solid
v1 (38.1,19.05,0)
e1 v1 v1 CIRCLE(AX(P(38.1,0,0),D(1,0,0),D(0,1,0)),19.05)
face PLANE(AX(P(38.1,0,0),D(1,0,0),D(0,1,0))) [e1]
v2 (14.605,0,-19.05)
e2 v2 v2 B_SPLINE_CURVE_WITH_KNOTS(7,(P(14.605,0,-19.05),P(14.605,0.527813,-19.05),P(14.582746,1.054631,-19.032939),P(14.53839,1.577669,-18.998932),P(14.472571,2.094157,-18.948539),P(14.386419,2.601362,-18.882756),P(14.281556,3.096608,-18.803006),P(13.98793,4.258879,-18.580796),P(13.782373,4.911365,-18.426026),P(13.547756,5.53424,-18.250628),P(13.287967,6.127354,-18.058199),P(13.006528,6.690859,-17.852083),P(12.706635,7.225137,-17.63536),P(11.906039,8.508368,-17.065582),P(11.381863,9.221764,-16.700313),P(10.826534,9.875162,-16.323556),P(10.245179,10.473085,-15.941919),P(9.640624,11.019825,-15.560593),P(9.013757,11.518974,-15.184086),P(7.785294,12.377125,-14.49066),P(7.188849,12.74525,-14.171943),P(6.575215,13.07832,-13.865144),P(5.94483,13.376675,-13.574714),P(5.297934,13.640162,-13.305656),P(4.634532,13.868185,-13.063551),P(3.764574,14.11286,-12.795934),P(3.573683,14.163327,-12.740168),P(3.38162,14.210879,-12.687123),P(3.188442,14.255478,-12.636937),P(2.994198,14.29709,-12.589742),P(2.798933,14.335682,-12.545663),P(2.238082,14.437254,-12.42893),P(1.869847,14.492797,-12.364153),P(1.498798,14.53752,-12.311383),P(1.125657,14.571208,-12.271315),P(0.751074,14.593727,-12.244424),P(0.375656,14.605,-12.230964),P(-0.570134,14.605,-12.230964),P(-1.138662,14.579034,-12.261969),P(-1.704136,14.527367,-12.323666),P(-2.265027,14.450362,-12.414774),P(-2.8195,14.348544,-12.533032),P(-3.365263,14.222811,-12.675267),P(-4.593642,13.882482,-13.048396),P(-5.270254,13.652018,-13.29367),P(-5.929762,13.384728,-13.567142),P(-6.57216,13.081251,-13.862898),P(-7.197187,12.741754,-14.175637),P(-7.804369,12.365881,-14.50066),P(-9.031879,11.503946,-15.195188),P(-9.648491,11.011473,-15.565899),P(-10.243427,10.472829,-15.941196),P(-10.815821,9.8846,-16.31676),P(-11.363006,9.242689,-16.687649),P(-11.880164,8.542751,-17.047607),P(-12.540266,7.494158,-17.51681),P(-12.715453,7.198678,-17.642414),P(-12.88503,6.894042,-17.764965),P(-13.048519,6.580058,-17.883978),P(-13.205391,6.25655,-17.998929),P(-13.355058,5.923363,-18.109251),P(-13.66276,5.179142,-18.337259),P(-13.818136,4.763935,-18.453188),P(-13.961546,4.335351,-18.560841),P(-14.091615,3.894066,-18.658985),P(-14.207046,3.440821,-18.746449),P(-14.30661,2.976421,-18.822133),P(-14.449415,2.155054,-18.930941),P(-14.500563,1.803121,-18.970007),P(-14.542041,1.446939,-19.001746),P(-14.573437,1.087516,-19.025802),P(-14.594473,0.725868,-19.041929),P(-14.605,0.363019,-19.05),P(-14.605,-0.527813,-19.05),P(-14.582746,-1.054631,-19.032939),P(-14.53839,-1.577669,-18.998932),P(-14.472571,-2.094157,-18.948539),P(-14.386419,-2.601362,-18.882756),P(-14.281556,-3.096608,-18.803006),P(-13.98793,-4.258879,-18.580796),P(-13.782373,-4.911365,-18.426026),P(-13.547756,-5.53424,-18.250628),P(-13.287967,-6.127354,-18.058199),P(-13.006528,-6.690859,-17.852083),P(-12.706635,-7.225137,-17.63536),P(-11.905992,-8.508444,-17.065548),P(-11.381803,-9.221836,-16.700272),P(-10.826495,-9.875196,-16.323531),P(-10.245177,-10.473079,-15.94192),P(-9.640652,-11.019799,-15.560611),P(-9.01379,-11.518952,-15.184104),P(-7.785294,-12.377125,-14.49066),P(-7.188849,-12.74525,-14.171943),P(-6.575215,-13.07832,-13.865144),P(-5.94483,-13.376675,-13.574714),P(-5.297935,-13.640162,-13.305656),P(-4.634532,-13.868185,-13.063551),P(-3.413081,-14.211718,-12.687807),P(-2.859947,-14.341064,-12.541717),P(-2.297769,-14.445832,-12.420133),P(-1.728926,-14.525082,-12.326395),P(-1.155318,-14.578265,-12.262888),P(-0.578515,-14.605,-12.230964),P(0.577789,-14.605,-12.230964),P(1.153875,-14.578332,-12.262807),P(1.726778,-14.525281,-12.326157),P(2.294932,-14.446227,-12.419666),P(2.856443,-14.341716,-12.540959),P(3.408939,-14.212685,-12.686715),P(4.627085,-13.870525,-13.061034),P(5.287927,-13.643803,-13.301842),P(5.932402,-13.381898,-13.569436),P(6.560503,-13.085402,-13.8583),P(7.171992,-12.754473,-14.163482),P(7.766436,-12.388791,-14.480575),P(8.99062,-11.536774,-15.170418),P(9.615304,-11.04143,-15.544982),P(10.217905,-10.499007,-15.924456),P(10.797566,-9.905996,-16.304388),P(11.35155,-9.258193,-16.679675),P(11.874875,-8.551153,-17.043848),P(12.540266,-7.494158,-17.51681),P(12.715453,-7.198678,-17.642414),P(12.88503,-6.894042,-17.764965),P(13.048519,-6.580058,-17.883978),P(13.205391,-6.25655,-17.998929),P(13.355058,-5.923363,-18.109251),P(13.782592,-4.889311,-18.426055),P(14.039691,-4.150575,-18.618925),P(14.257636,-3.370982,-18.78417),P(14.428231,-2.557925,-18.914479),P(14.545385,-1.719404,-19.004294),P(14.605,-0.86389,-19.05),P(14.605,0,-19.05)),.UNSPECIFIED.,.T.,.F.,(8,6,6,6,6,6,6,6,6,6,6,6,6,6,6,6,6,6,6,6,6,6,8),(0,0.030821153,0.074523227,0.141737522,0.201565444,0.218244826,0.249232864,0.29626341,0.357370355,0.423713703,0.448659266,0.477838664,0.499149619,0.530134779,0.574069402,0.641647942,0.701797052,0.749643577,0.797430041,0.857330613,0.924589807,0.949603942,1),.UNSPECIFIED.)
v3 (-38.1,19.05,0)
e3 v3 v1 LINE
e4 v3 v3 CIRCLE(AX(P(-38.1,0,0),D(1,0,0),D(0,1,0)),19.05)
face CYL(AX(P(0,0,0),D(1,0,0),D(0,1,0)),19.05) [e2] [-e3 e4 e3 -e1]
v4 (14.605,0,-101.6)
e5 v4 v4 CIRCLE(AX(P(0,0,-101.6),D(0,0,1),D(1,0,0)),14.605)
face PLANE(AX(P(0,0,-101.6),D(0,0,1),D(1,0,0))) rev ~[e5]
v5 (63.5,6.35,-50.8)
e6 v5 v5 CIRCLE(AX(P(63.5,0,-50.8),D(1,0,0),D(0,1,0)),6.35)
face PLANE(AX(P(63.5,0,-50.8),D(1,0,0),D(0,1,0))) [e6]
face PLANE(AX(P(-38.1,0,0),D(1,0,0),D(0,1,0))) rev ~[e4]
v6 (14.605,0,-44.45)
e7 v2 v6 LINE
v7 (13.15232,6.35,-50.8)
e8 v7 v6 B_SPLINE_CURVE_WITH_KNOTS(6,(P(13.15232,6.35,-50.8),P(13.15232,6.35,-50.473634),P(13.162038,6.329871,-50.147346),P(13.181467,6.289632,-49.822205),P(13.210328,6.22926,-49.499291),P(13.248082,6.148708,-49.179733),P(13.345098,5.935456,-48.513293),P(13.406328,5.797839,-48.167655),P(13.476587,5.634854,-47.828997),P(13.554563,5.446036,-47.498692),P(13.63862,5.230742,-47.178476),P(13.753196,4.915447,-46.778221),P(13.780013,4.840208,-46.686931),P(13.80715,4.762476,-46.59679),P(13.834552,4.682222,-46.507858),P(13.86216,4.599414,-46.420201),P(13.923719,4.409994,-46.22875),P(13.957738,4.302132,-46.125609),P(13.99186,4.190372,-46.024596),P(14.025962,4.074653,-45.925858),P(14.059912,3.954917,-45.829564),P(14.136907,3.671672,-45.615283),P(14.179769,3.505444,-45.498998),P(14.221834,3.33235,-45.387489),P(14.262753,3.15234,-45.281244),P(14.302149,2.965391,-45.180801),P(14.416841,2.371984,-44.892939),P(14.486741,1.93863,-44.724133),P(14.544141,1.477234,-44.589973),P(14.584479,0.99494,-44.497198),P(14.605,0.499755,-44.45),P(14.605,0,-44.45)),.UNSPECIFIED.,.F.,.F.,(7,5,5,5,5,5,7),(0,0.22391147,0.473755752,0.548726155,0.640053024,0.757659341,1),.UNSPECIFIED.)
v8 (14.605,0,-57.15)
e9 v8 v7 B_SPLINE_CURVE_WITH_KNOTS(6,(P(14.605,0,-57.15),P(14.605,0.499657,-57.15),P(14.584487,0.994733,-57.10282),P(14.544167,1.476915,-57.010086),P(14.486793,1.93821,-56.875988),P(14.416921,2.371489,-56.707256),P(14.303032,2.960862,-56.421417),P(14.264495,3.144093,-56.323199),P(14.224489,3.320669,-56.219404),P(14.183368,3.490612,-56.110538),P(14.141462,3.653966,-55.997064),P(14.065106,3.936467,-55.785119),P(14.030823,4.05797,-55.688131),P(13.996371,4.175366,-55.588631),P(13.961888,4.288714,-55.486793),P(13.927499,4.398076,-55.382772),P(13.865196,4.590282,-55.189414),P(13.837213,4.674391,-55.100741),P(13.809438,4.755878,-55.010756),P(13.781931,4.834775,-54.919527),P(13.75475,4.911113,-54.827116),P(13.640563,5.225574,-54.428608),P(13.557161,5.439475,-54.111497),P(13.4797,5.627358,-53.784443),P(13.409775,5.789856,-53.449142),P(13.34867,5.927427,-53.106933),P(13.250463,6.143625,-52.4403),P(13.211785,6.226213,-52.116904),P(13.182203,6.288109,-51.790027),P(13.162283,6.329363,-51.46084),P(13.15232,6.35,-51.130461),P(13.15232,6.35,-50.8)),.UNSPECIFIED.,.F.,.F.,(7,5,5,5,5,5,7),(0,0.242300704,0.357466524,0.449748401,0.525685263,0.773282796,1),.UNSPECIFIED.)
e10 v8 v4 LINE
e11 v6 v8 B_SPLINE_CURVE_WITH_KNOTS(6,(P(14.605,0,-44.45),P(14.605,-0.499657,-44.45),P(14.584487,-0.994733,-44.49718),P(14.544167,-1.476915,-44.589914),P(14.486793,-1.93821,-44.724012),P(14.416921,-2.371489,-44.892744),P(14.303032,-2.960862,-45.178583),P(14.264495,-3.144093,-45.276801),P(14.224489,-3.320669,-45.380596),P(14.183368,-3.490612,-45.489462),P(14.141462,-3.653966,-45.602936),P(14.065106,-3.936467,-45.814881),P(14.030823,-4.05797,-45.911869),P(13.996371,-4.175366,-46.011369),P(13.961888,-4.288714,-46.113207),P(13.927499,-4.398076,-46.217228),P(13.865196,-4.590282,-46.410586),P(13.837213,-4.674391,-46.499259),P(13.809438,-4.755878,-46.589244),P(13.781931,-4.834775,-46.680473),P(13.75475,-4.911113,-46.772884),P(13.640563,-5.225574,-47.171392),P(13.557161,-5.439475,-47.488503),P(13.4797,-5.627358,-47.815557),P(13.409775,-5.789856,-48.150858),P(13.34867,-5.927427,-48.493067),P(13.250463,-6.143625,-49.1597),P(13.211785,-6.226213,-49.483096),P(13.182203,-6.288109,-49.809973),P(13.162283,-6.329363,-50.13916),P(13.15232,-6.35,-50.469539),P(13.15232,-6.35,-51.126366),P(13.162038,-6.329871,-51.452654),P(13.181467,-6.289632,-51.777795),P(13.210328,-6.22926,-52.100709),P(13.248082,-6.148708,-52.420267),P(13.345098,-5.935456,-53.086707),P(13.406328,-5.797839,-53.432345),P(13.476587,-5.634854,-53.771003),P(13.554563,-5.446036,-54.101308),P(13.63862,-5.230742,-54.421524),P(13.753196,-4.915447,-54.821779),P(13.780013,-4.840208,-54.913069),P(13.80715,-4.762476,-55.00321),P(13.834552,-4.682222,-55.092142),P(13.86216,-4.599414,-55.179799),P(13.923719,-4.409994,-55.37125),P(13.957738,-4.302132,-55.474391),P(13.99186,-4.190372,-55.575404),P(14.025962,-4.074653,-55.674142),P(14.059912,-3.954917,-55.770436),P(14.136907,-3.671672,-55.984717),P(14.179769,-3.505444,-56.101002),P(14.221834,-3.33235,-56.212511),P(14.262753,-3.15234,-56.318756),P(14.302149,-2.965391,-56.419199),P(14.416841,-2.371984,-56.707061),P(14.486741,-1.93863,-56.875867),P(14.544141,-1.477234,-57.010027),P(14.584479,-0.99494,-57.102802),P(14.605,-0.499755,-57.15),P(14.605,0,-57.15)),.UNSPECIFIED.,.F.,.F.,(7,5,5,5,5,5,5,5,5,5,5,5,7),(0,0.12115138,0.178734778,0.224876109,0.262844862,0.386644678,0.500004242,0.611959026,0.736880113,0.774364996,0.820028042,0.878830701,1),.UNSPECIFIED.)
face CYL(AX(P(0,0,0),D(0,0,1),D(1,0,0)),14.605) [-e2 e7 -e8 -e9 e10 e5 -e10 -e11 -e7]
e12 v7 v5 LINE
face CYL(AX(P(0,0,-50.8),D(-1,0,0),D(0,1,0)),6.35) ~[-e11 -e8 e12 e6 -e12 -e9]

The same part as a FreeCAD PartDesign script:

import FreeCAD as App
import Part
import Sketcher
from FreeCAD import Vector
Q = App.Units.Quantity

doc = App.newDocument("Part")
body = doc.addObject("PartDesign::Body", "Body")

sketch1 = body.newObject("Sketcher::SketchObject", "Sketch")
sketch1.AttachmentSupport = (doc.getObject("YZ_Plane"), [""])
sketch1.MapMode = "FlatFace"
sketch1.addGeometry(Part.Circle(Vector(0, 0, 0), Vector(0, 0, 1), 19.05), False)
sketch1.addConstraint([
    Sketcher.Constraint("Coincident", 0, 3, -1, 1),
    Sketcher.Constraint("Diameter", 0, Q("1.5 in")),
])
pad1 = body.newObject("PartDesign::Pad", "Pad")
pad1.Profile = sketch1
pad1.Length = Q("3 in")
pad1.Midplane = True

sketch2 = body.newObject("Sketcher::SketchObject", "Sketch001")
sketch2.AttachmentSupport = (doc.getObject("XY_Plane"), [""])
sketch2.MapMode = "FlatFace"
sketch2.addGeometry(Part.Circle(Vector(0, 0, 0), Vector(0, 0, 1), 14.605), False)
sketch2.addConstraint([
    Sketcher.Constraint("Coincident", 0, 3, -1, 1),
    Sketcher.Constraint("Diameter", 0, Q("1.15 in")),
])
pad2 = body.newObject("PartDesign::Pad", "Pad001")
pad2.Profile = sketch2
pad2.Length = Q("4 in")
pad2.Reversed = True

sketch3 = body.newObject("Sketcher::SketchObject", "Sketch002")
sketch3.AttachmentSupport = (doc.getObject("YZ_Plane"), [""])
sketch3.MapMode = "FlatFace"
sketch3.addGeometry(Part.Circle(Vector(0, -50.8, 0), Vector(0, 0, 1), 6.35), False)
sketch3.addConstraint([
    Sketcher.Constraint("PointOnObject", 0, 3, -2),
    Sketcher.Constraint("Diameter", 0, Q("0.5 in")),
    Sketcher.Constraint("DistanceY", 0, 3, -1, 1, Q("2 in")),
])
pad3 = body.newObject("PartDesign::Pad", "Pad002")
pad3.Profile = sketch3
pad3.Length = Q("2.5 in")

doc.recompute()
